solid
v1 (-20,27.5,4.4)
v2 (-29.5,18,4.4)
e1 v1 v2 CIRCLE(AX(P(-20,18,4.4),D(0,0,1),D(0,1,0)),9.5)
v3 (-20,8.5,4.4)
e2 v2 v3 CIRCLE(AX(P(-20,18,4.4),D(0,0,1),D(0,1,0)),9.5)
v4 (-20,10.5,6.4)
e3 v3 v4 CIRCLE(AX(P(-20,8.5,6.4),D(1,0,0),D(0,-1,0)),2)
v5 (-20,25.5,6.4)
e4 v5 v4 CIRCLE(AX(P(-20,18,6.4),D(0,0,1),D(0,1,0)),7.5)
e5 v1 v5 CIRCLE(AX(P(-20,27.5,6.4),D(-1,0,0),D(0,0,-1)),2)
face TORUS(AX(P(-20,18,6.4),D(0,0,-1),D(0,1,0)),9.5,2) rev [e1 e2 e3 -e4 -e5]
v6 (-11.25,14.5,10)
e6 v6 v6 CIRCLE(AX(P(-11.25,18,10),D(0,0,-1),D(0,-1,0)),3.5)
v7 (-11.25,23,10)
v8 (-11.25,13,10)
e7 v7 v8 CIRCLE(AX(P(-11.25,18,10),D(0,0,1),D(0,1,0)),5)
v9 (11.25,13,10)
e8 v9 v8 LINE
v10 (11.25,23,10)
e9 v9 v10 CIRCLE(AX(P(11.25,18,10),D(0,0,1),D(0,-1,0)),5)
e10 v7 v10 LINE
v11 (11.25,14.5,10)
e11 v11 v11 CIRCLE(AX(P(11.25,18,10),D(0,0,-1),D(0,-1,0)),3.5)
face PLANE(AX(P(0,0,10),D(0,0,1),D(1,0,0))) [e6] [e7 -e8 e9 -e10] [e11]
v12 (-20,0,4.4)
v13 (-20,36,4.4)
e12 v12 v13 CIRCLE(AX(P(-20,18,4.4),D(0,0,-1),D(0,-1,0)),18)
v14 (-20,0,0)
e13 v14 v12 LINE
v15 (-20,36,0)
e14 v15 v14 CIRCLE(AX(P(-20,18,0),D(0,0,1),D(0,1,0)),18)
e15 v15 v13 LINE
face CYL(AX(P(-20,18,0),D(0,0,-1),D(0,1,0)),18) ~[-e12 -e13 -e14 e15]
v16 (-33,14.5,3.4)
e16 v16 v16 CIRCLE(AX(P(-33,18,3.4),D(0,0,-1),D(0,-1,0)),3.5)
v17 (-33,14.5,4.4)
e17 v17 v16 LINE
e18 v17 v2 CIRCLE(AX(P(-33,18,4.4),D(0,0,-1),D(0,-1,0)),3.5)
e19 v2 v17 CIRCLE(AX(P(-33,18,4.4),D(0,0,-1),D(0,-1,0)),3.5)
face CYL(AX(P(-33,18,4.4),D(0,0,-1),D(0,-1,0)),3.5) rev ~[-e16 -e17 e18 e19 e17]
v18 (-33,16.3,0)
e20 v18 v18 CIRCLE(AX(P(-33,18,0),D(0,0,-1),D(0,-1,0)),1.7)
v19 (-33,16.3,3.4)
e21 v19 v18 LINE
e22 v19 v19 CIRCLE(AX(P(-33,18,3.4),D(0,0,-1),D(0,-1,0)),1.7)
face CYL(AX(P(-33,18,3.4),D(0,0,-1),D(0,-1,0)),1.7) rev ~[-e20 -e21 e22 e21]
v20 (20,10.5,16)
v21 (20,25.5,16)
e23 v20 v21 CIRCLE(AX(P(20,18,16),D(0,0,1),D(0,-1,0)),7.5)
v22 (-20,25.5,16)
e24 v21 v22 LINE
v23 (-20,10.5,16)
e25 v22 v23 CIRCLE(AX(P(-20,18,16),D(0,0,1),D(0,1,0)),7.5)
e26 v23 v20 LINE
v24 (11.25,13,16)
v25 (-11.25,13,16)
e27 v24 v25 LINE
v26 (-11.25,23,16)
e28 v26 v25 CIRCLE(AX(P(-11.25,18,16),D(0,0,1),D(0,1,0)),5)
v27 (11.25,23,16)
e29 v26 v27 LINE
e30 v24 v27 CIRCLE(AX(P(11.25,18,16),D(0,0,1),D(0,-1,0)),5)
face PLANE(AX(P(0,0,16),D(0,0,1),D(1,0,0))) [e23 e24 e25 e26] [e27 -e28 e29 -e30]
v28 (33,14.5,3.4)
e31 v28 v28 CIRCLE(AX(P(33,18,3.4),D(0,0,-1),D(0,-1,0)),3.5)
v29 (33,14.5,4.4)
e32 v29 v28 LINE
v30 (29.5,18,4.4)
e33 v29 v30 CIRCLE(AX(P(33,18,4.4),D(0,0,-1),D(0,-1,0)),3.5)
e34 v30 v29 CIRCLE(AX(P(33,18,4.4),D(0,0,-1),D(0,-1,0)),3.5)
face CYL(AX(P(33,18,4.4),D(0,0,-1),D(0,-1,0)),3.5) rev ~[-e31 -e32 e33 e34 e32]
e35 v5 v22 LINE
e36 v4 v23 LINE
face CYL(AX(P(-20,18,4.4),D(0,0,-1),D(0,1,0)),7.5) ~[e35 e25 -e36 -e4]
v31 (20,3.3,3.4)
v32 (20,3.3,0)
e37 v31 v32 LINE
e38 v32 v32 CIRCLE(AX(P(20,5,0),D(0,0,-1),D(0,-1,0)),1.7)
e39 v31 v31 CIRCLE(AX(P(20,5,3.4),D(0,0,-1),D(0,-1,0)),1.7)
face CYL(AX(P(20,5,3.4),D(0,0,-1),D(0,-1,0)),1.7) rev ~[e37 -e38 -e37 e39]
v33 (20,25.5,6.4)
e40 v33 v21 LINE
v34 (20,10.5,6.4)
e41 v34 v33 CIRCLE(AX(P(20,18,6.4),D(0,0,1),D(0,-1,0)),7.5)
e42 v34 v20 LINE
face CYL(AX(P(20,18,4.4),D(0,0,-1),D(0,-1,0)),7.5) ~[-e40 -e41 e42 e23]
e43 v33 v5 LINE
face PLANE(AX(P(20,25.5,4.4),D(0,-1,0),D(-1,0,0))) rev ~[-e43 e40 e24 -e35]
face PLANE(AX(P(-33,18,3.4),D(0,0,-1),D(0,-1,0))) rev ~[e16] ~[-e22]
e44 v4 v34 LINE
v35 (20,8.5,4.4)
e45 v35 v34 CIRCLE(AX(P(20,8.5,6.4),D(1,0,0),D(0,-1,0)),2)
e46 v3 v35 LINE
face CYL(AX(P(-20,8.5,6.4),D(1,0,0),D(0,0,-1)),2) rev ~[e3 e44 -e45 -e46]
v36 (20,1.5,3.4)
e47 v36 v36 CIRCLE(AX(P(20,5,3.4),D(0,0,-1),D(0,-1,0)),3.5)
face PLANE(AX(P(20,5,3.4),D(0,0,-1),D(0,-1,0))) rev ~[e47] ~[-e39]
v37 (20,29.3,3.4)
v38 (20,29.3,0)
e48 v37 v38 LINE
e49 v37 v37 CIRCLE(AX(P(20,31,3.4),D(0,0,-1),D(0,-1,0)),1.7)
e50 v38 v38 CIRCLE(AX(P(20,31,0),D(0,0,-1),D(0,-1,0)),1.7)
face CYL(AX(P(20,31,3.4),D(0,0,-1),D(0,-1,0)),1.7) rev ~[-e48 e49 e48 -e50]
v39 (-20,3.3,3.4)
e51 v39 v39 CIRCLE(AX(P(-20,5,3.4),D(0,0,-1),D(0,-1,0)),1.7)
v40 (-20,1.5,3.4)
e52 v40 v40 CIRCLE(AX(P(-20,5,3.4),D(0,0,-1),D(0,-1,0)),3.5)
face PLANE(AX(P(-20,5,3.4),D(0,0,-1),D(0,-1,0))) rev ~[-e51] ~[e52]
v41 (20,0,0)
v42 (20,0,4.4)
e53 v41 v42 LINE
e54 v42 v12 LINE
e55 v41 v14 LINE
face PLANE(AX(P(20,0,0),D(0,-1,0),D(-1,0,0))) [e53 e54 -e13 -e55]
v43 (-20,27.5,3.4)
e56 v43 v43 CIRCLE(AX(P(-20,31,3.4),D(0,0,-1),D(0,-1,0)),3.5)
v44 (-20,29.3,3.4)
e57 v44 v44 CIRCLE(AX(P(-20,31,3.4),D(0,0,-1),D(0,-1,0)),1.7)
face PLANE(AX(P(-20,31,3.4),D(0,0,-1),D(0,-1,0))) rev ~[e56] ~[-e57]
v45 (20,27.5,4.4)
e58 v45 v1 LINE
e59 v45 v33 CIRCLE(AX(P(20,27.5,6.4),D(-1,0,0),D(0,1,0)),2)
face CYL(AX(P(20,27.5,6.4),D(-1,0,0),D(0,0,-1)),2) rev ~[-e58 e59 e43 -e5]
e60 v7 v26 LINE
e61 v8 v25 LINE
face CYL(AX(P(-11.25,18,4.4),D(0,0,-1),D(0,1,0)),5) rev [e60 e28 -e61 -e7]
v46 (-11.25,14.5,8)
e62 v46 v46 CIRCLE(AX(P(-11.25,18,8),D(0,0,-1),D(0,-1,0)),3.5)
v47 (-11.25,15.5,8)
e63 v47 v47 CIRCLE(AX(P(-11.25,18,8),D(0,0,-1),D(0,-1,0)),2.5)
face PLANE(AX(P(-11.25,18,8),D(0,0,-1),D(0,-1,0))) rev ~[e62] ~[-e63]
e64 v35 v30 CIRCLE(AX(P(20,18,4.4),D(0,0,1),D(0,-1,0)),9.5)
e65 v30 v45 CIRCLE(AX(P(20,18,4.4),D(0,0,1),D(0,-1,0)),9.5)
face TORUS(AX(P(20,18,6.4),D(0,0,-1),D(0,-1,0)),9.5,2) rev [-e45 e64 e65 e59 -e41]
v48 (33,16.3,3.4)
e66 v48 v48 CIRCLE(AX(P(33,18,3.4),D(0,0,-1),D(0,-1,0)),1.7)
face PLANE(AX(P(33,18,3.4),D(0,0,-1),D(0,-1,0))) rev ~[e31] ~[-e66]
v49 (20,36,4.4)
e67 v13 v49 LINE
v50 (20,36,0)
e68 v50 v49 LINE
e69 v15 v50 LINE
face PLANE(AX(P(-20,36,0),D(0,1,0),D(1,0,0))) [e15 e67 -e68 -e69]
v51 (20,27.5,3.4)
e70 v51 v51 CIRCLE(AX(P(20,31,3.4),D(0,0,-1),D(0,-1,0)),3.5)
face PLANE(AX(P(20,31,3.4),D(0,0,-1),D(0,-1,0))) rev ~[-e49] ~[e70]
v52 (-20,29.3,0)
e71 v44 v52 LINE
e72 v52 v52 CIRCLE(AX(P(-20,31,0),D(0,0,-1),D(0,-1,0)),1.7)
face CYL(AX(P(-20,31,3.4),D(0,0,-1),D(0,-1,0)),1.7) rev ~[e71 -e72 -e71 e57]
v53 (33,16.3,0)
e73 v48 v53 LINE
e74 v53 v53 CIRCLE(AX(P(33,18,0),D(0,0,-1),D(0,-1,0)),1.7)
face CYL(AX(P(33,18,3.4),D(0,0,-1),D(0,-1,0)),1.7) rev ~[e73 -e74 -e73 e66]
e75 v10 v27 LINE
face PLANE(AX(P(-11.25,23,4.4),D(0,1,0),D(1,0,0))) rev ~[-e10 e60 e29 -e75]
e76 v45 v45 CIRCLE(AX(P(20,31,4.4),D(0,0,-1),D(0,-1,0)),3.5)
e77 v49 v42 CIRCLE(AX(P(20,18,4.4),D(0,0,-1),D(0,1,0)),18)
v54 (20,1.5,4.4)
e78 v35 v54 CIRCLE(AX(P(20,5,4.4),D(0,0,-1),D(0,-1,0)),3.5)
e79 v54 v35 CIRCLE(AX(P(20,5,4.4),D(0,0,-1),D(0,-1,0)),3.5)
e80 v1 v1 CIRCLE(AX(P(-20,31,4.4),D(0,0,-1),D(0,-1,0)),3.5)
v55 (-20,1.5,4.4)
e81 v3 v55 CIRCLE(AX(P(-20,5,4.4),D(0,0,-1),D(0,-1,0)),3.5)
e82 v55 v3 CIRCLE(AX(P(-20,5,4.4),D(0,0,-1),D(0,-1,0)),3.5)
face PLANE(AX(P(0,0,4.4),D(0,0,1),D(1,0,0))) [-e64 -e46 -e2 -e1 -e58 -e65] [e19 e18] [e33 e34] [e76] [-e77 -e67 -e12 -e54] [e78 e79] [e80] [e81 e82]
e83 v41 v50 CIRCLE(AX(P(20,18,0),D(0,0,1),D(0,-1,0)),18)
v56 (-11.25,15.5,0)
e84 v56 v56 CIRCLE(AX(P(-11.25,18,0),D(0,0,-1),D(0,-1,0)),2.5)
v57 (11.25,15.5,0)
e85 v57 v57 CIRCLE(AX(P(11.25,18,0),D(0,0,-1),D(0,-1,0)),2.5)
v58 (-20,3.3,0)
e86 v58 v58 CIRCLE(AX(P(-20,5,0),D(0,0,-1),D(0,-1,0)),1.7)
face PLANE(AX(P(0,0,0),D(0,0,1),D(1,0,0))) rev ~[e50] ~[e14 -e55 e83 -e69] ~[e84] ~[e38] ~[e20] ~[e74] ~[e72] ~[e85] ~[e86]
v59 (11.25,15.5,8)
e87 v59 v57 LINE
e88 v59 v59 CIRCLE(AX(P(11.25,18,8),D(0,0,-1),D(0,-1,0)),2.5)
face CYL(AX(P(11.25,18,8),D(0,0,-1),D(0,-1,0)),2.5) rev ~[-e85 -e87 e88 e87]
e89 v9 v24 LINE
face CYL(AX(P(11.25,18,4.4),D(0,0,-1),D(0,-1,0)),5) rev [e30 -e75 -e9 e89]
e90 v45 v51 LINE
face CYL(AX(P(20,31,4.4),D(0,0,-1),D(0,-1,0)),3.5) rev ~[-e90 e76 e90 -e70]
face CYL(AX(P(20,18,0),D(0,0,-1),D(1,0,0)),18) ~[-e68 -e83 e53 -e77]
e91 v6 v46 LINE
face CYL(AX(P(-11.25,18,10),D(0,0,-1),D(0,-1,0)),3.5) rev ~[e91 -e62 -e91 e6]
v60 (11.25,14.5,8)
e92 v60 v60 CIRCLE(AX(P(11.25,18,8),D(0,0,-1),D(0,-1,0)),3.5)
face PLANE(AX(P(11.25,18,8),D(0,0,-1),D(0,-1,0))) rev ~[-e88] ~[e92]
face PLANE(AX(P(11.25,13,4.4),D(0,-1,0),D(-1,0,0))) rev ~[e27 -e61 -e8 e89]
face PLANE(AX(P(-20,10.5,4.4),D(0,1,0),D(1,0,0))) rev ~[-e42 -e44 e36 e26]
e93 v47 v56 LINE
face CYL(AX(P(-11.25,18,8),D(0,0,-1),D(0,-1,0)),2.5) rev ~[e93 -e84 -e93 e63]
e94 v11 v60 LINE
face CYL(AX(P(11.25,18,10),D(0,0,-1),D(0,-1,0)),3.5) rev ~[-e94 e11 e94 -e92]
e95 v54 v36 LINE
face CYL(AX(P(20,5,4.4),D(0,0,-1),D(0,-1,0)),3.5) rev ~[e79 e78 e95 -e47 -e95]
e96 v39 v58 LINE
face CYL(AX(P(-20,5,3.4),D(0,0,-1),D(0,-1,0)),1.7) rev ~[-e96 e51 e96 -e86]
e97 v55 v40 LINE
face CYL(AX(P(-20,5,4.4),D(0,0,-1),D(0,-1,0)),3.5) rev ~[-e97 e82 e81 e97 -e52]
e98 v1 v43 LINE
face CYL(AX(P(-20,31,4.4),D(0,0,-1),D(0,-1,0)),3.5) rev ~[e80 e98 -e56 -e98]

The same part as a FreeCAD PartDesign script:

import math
import FreeCAD as App
import Part
import Sketcher

V = App.Vector
Q = App.Units.Quantity


def edges_at(feature, points):
    """Names of the edges that pass closest to the given points."""
    edges = feature.Shape.Edges
    near = lambda p: min(range(len(edges)), key=lambda i: edges[i].distToShape(Part.Vertex(*p))[0])
    return sorted({f"Edge{near(p) + 1}" for p in points})

doc = App.newDocument("Part")
body = doc.addObject("PartDesign::Body", "Body")

# Sketch on XY plane
sketch1 = body.newObject("Sketcher::SketchObject", "Sketch")
sketch1.AttachmentSupport = (doc.getObject("XY_Plane"), [""])
sketch1.MapMode = "FlatFace"
sketch1.addGeometry([
    Part.LineSegment(V(20, 36, 0), V(-20, 36, 0)),
    Part.ArcOfCircle(Part.Circle(V(-20, 18, 0), V(0, 0, 1), 18), math.radians(90), math.radians(270)),
    Part.LineSegment(V(-20, 0, 0), V(20, 0, 0)),
    Part.ArcOfCircle(Part.Circle(V(20, 18, 0), V(0, 0, 1), 18), math.radians(-90), math.radians(90)),
], False)
sketch1.addConstraint([
    Sketcher.Constraint("Tangent", 0, 2, 1, 1),
    Sketcher.Constraint("Tangent", 1, 2, 2, 1),
    Sketcher.Constraint("Tangent", 2, 2, 3, 1),
    Sketcher.Constraint("Tangent", 3, 2, 0, 1),
    Sketcher.Constraint("Horizontal", 0),
    Sketcher.Constraint("Horizontal", 2),
    Sketcher.Constraint("Symmetric", 1, 2, 2, 2, -1, 1),
    Sketcher.Constraint("Radius", 1, Q("18 mm")),
    Sketcher.Constraint("DistanceX", 0, 2, 0, 1, Q("40 mm")),
])
pad1 = body.newObject("PartDesign::Pad", "Pad")
pad1.Profile = sketch1
pad1.Length = 4.4

# Sketch on XY plane
sketch2 = body.newObject("Sketcher::SketchObject", "Sketch001")
sketch2.AttachmentSupport = (doc.getObject("XY_Plane"), [""])
sketch2.MapMode = "FlatFace"
sketch2.AttachmentOffset = App.Placement(V(0, 0, 4.4), App.Rotation())
sketch2.addGeometry([
    Part.LineSegment(V(11, 23, 0), V(-11, 23, 0)),
    Part.ArcOfCircle(Part.Circle(V(-11, 18, 0), V(0, 0, 1), 5), math.radians(90), math.radians(270)),
    Part.LineSegment(V(-11, 13, 0), V(11, 13, 0)),
    Part.ArcOfCircle(Part.Circle(V(11, 18, 0), V(0, 0, 1), 5), math.radians(-90), math.radians(90)),
], False)
sketch2.addConstraint([
    Sketcher.Constraint("Tangent", 0, 2, 1, 1),
    Sketcher.Constraint("Tangent", 1, 2, 2, 1),
    Sketcher.Constraint("Tangent", 2, 2, 3, 1),
    Sketcher.Constraint("Tangent", 3, 2, 0, 1),
    Sketcher.Constraint("Horizontal", 0),
    Sketcher.Constraint("Horizontal", 2),
    Sketcher.Constraint("Radius", 1, Q("5 mm")),
    Sketcher.Constraint("DistanceX", 0, 2, 0, 1, Q("22.5 mm")),
    Sketcher.Constraint("DistanceY", -1, 1, 1, 3, Q("18 mm")),
    Sketcher.Constraint("DistanceX", 1, 3, -1, 1, Q("11.25 mm")),
])
pad2 = body.newObject("PartDesign::Pad", "Pad001")
pad2.Profile = sketch2
pad2.Length = 5.6

# Sketch on XY plane
sketch3 = body.newObject("Sketcher::SketchObject", "Sketch002")
sketch3.AttachmentSupport = (doc.getObject("XY_Plane"), [""])
sketch3.MapMode = "FlatFace"
sketch3.AttachmentOffset = App.Placement(V(0, 0, 4.4), App.Rotation())
sketch3.addGeometry([
    Part.ArcOfCircle(Part.Circle(V(-20, 18, 0), V(0, 0, 1), 8), math.radians(90), math.radians(270)),  # 0
    Part.LineSegment(V(-20, 10, 0), V(20, 10, 0)),  # 1
    Part.ArcOfCircle(Part.Circle(V(20, 18, 0), V(0, 0, 1), 8), math.radians(-90), math.radians(90)),  # 2
    Part.LineSegment(V(20, 26, 0), V(-20, 26, 0)),  # 3
    Part.ArcOfCircle(Part.Circle(V(-11, 18, 0), V(0, 0, 1), 5), math.radians(90), math.radians(270)),  # 4
    Part.LineSegment(V(-11, 23, 0), V(11, 23, 0)),  # 5
    Part.ArcOfCircle(Part.Circle(V(11, 18, 0), V(0, 0, 1), 5), math.radians(-90), math.radians(90)),  # 6
    Part.LineSegment(V(11, 13, 0), V(-11, 13, 0)),  # 7
], False)
sketch3.addConstraint([
    Sketcher.Constraint("Tangent", 0, 2, 1, 1),
    Sketcher.Constraint("Tangent", 1, 2, 2, 1),
    Sketcher.Constraint("Tangent", 2, 2, 3, 1),
    Sketcher.Constraint("Tangent", 3, 2, 0, 1),
    Sketcher.Constraint("Tangent", 4, 1, 5, 1),
    Sketcher.Constraint("Tangent", 5, 2, 6, 2),
    Sketcher.Constraint("Tangent", 6, 1, 7, 1),
    Sketcher.Constraint("Tangent", 7, 2, 4, 2),
    Sketcher.Constraint("Horizontal", 1),
    Sketcher.Constraint("Horizontal", 3),
    Sketcher.Constraint("Horizontal", 5),
    Sketcher.Constraint("Horizontal", 7),
    Sketcher.Constraint("Horizontal", 2, 3, 4, 3),
    Sketcher.Constraint("Radius", 4, Q("5 mm")),
    Sketcher.Constraint("Radius", 0, Q("7.5 mm")),
    Sketcher.Constraint("DistanceX", 5, 1, 5, 2, Q("22.5 mm")),
    Sketcher.Constraint("DistanceX", 1, 1, 1, 2, Q("40 mm")),
    Sketcher.Constraint("DistanceX", 0, 3, -1, 1, Q("20 mm")),
    Sketcher.Constraint("DistanceY", -1, 1, 0, 3, Q("18 mm")),
    Sketcher.Constraint("DistanceX", 4, 3, -1, 1, Q("11.25 mm")),
])
pad3 = body.newObject("PartDesign::Pad", "Pad002")
pad3.Profile = sketch3
pad3.Length = 11.6
doc.recompute()

fillet = body.newObject("PartDesign::Fillet", "Fillet")
fillet.Base = (pad3, edges_at(pad3, [
    (27.5, 18, 4.4),
    (0, 10.5, 4.4),
    (-27.5, 18, 4.4),
    (0, 25.5, 4.4),
]))
fillet.Radius = 2

# Sketch on XY plane
sketch4 = body.newObject("Sketcher::SketchObject", "Sketch003")
sketch4.AttachmentSupport = (doc.getObject("XY_Plane"), [""])
sketch4.MapMode = "FlatFace"
sketch4.AttachmentOffset = App.Placement(V(0, 0, 10), App.Rotation())
sketch4.addGeometry(Part.Circle(V(-11.2, 18, 0), V(0, 0, 1), 2.5), False)
sketch4.addConstraint([
    Sketcher.Constraint("Diameter", 0, Q("5 mm")),
    Sketcher.Constraint("DistanceY", -1, 1, 0, 3, Q("18 mm")),
    Sketcher.Constraint("DistanceX", 0, 3, -1, 1, Q("11.25 mm")),
])
doc.recompute()
hole = body.newObject("PartDesign::Hole", "Hole")
hole.Profile = sketch4
hole.ThreadType = "None"
hole.Diameter = 5
hole.DepthType = "Dimension"
hole.Depth = 10
hole.DrillPoint = "Flat"
hole.HoleCutType = "Counterbore"
hole.HoleCutDiameter = 7
hole.HoleCutDepth = 2

# Sketch on XY plane
sketch5 = body.newObject("Sketcher::SketchObject", "Sketch004")
sketch5.AttachmentSupport = (doc.getObject("XY_Plane"), [""])
sketch5.MapMode = "FlatFace"
sketch5.AttachmentOffset = App.Placement(V(0, 0, 10), App.Rotation())
sketch5.addGeometry(Part.Circle(V(11.2, 18, 0), V(0, 0, 1), 2.5), False)
sketch5.addConstraint([
    Sketcher.Constraint("Diameter", 0, Q("5 mm")),
    Sketcher.Constraint("DistanceY", -1, 1, 0, 3, Q("18 mm")),
    Sketcher.Constraint("DistanceX", -1, 1, 0, 3, Q("11.25 mm")),
])
doc.recompute()
hole2 = body.newObject("PartDesign::Hole", "Hole001")
hole2.Profile = sketch5
hole2.ThreadType = "None"
hole2.Diameter = 5
hole2.DepthType = "Dimension"
hole2.Depth = 10
hole2.DrillPoint = "Flat"
hole2.HoleCutType = "Counterbore"
hole2.HoleCutDiameter = 7
hole2.HoleCutDepth = 2

# Sketch on XY plane
sketch6 = body.newObject("Sketcher::SketchObject", "Sketch005")
sketch6.AttachmentSupport = (doc.getObject("XY_Plane"), [""])
sketch6.MapMode = "FlatFace"
sketch6.AttachmentOffset = App.Placement(V(0, 0, 4.4), App.Rotation())
sketch6.addGeometry([
    Part.Circle(V(-33, 18, 0), V(0, 0, 1), 1.7),  # 0
    Part.Circle(V(33, 18, 0), V(0, 0, 1), 1.7),  # 1
    Part.Circle(V(-20, 31, 0), V(0, 0, 1), 1.7),  # 2
    Part.Circle(V(-20, 5, 0), V(0, 0, 1), 1.7),  # 3
    Part.Circle(V(20, 31, 0), V(0, 0, 1), 1.7),  # 4
    Part.Circle(V(20, 5, 0), V(0, 0, 1), 1.7),  # 5
], False)
sketch6.addConstraint([
    Sketcher.Constraint("Equal", 0, 1),
    Sketcher.Constraint("Equal", 1, 2),
    Sketcher.Constraint("Equal", 2, 3),
    Sketcher.Constraint("Equal", 3, 4),
    Sketcher.Constraint("Equal", 4, 5),
    Sketcher.Constraint("Symmetric", 0, 3, 1, 3, -2),
    Sketcher.Constraint("Symmetric", 2, 3, 4, 3, -2),
    Sketcher.Constraint("Symmetric", 3, 3, 5, 3, -2),
    Sketcher.Constraint("Vertical", 2, 3, 3, 3),
    Sketcher.Constraint("Diameter", 0, Q("3.4 mm")),
    Sketcher.Constraint("DistanceX", 0, 3, -1, 1, Q("33 mm")),
    Sketcher.Constraint("DistanceY", -1, 1, 0, 3, Q("18 mm")),
    Sketcher.Constraint("DistanceX", 2, 3, -1, 1, Q("20 mm")),
    Sketcher.Constraint("DistanceY", -1, 1, 2, 3, Q("31 mm")),
    Sketcher.Constraint("DistanceY", -1, 1, 3, 3, Q("5 mm")),
])
doc.recompute()
hole3 = body.newObject("PartDesign::Hole", "Hole002")
hole3.Profile = sketch6
hole3.ThreadType = "None"
hole3.Diameter = 3.4
hole3.DepthType = "ThroughAll"
hole3.HoleCutType = "Counterbore"
hole3.HoleCutDiameter = 7
hole3.HoleCutDepth = 1

doc.recompute()
